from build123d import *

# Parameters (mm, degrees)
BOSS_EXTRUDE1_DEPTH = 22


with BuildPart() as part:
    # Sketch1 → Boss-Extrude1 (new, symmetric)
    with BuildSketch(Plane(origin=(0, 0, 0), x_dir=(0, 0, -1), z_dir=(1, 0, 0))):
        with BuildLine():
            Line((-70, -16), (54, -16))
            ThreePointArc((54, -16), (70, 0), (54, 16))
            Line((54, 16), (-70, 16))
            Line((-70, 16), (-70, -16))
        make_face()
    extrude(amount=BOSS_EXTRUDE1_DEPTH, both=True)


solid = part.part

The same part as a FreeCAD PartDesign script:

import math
import FreeCAD as App
import Part
import Sketcher

V = App.Vector
Q = App.Units.Quantity

doc = App.newDocument("Part")
body = doc.addObject("PartDesign::Body", "Body")

sketch1 = doc.addObject("Sketcher::SketchObject", "Sketch")
body.addObject(sketch1)
sketch1.AttachmentSupport = (doc.YZ_Plane, [""])
sketch1.MapMode = "FlatFace"
sketch1.addGeometry(Part.LineSegment(V(-16, 70, 0), V(-16, -54, 0)), False)
sketch1.addGeometry(Part.ArcOfCircle(Part.Circle(V(0, -54, 0), V(0, 0, 1), 16), math.radians(180), math.radians(360)), False)
sketch1.addGeometry(Part.LineSegment(V(16, -54, 0), V(16, 70, 0)), False)
sketch1.addGeometry(Part.LineSegment(V(16, 70, 0), V(-16, 70, 0)), False)
sketch1.addConstraint(Sketcher.Constraint("Tangent", 0, 2, 1, 1))
sketch1.addConstraint(Sketcher.Constraint("Tangent", 1, 2, 2, 1))
sketch1.addConstraint(Sketcher.Constraint("Coincident", 2, 2, 3, 1))
sketch1.addConstraint(Sketcher.Constraint("Coincident", 3, 2, 0, 1))
sketch1.addConstraint(Sketcher.Constraint("Vertical", 0))
sketch1.addConstraint(Sketcher.Constraint("Vertical", 2))
sketch1.addConstraint(Sketcher.Constraint("Horizontal", 3))
sketch1.addConstraint(Sketcher.Constraint("PointOnObject", 1, 3, -2))
sketch1.addConstraint(Sketcher.Constraint("Radius", 1, Q("16 mm")))
sketch1.addConstraint(Sketcher.Constraint("DistanceY", 0, 2, 0, 1, Q("124 mm")))
sketch1.addConstraint(Sketcher.Constraint("DistanceY", 1, 3, -1, 1, Q("54 mm")))
pad1 = doc.addObject("PartDesign::Pad", "Pad")
body.addObject(pad1)
pad1.Profile = sketch1
pad1.Length = 44
pad1.Midplane = True

doc.recompute()
